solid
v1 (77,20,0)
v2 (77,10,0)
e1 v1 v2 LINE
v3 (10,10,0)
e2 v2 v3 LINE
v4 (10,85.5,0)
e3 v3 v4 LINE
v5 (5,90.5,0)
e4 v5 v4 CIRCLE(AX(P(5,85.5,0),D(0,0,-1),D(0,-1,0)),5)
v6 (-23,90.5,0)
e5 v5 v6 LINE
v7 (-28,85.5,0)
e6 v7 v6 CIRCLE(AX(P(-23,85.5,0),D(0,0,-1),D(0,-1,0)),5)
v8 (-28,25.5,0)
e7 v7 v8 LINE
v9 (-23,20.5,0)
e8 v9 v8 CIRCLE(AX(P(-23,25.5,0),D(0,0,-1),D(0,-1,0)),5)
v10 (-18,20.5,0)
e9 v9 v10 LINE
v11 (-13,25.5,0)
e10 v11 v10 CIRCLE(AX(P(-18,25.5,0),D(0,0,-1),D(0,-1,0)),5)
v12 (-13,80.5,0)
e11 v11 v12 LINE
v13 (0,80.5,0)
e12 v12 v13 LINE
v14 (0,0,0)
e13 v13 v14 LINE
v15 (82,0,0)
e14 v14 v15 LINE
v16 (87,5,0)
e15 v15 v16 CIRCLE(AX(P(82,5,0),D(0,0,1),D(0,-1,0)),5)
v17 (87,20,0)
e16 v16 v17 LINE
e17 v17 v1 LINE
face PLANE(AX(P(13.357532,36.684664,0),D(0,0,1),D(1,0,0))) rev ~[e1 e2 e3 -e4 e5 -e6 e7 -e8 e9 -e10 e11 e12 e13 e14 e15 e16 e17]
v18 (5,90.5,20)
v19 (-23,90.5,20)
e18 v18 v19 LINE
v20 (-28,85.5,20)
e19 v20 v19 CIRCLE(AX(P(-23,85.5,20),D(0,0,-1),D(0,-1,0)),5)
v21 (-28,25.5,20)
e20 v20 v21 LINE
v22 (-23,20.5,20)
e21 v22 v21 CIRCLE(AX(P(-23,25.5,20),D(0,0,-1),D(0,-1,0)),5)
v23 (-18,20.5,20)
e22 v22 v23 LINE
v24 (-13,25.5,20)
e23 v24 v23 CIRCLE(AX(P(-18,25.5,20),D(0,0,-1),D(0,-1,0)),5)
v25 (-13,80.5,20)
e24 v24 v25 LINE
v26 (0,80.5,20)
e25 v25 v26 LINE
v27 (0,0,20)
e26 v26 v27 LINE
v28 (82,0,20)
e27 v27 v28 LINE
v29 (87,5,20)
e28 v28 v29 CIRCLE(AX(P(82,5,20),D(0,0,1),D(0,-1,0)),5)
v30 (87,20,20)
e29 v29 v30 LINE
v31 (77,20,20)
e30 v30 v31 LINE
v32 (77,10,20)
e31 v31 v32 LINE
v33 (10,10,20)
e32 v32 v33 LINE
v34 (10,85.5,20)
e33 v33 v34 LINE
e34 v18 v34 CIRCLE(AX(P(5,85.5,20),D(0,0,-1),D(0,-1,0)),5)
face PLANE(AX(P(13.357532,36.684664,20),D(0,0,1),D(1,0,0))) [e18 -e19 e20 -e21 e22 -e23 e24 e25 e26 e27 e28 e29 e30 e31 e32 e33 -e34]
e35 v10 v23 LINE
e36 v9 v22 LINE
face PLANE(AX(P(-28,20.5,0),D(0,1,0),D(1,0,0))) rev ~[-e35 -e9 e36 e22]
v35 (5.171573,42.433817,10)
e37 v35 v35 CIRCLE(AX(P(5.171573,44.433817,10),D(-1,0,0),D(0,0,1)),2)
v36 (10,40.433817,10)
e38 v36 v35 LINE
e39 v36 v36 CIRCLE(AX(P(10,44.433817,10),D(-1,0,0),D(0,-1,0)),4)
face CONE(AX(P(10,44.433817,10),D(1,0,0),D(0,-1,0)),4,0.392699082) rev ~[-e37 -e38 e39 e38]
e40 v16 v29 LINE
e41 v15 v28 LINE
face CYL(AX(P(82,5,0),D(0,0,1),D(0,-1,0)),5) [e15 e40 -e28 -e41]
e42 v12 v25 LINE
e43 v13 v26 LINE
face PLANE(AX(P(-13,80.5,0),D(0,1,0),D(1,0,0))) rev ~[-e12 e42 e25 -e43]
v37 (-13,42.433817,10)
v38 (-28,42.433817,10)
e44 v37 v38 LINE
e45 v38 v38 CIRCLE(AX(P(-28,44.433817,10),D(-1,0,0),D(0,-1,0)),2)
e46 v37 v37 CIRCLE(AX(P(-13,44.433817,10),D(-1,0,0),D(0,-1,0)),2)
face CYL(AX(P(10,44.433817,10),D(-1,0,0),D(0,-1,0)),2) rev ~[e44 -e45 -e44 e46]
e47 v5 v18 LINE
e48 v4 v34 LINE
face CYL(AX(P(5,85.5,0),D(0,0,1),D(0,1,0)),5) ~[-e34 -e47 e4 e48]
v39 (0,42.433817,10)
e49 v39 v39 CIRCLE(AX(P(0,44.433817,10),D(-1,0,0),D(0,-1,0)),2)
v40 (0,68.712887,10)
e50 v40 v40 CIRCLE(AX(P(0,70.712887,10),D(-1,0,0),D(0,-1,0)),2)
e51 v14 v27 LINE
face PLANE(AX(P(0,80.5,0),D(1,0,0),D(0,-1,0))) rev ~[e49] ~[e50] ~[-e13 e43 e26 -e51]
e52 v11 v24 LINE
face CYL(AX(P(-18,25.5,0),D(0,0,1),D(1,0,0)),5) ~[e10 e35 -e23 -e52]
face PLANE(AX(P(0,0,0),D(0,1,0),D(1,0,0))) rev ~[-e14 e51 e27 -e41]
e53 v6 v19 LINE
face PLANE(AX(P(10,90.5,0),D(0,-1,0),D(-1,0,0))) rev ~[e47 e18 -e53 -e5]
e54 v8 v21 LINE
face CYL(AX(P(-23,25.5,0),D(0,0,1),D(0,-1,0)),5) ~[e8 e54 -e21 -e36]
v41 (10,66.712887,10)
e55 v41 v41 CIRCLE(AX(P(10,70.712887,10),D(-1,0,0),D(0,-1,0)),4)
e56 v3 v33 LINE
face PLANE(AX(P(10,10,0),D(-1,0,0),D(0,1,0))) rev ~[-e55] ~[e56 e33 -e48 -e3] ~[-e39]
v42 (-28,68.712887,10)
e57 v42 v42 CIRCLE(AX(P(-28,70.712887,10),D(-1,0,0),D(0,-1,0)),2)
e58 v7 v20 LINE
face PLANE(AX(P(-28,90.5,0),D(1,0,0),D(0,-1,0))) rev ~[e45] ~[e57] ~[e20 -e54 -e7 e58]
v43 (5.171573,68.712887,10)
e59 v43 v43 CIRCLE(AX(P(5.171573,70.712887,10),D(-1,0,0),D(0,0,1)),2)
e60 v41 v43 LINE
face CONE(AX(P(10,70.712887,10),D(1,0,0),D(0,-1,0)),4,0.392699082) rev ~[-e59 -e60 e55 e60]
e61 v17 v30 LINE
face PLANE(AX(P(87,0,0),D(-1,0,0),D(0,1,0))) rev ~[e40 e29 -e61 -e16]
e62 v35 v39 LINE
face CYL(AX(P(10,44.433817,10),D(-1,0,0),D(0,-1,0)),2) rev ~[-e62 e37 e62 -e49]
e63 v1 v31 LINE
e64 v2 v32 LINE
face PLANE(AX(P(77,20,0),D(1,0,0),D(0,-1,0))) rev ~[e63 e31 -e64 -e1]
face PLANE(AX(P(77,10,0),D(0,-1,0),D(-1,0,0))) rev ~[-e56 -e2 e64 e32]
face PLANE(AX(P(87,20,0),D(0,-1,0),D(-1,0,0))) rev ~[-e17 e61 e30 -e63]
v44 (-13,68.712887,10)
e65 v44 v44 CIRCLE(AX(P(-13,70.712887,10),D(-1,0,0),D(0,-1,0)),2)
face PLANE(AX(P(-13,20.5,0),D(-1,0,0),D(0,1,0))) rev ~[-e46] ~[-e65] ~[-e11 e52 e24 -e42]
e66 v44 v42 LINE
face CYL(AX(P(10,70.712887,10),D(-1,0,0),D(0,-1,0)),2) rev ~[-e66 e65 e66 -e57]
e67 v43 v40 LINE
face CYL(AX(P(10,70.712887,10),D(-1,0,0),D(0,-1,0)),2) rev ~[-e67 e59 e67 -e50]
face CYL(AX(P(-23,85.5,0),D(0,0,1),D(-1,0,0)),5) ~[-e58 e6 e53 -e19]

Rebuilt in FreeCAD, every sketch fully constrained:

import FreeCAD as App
import Part
import Sketcher
from FreeCAD import Vector


def edges_at(feature, points):
    """Names of the edges that pass closest to the given points."""
    edges = feature.Shape.Edges
    near = lambda p: min(range(len(edges)), key=lambda i: edges[i].distToShape(Part.Vertex(*p))[0])
    return sorted({f"Edge{near(p) + 1}" for p in points})

doc = App.newDocument("Part")
body = doc.addObject("PartDesign::Body", "Body")

sketch1 = doc.addObject("Sketcher::SketchObject", "Sketch")
body.addObject(sketch1)
sketch1.AttachmentSupport = (doc.XY_Plane, [""])
sketch1.MapMode = "FlatFace"
sketch1.addGeometry(Part.LineSegment(Vector(0, 80, 0), Vector(0, 0, 0)), False)
sketch1.addGeometry(Part.LineSegment(Vector(0, 0, 0), Vector(87, 0, 0)), False)
sketch1.addGeometry(Part.LineSegment(Vector(87, 0, 0), Vector(87, 20, 0)), False)
sketch1.addGeometry(Part.LineSegment(Vector(87, 20, 0), Vector(77, 20, 0)), False)
sketch1.addGeometry(Part.LineSegment(Vector(77, 20, 0), Vector(77, 10, 0)), False)
sketch1.addGeometry(Part.LineSegment(Vector(77, 10, 0), Vector(10, 10, 0)), False)
sketch1.addGeometry(Part.LineSegment(Vector(10, 10, 0), Vector(10, 90, 0)), False)
sketch1.addGeometry(Part.LineSegment(Vector(10, 90, 0), Vector(-28, 90, 0)), False)
sketch1.addGeometry(Part.LineSegment(Vector(-28, 90, 0), Vector(-28, 20, 0)), False)
sketch1.addGeometry(Part.LineSegment(Vector(-28, 20, 0), Vector(-13, 20, 0)), False)
sketch1.addGeometry(Part.LineSegment(Vector(-13, 20, 0), Vector(-13, 80, 0)), False)
sketch1.addGeometry(Part.LineSegment(Vector(-13, 80, 0), Vector(0, 80, 0)), False)
sketch1.addConstraint(Sketcher.Constraint("Coincident", 0, 2, 1, 1))
sketch1.addConstraint(Sketcher.Constraint("Coincident", 1, 2, 2, 1))
sketch1.addConstraint(Sketcher.Constraint("Coincident", 2, 2, 3, 1))
sketch1.addConstraint(Sketcher.Constraint("Coincident", 3, 2, 4, 1))
sketch1.addConstraint(Sketcher.Constraint("Coincident", 4, 2, 5, 1))
sketch1.addConstraint(Sketcher.Constraint("Coincident", 5, 2, 6, 1))
sketch1.addConstraint(Sketcher.Constraint("Coincident", 6, 2, 7, 1))
sketch1.addConstraint(Sketcher.Constraint("Coincident", 7, 2, 8, 1))
sketch1.addConstraint(Sketcher.Constraint("Coincident", 8, 2, 9, 1))
sketch1.addConstraint(Sketcher.Constraint("Coincident", 9, 2, 10, 1))
sketch1.addConstraint(Sketcher.Constraint("Coincident", 10, 2, 11, 1))
sketch1.addConstraint(Sketcher.Constraint("Coincident", 11, 2, 0, 1))
sketch1.addConstraint(Sketcher.Constraint("Vertical", 0))
sketch1.addConstraint(Sketcher.Constraint("Horizontal", 1))
sketch1.addConstraint(Sketcher.Constraint("Vertical", 2))
sketch1.addConstraint(Sketcher.Constraint("Horizontal", 3))
sketch1.addConstraint(Sketcher.Constraint("Vertical", 4))
sketch1.addConstraint(Sketcher.Constraint("Horizontal", 5))
sketch1.addConstraint(Sketcher.Constraint("Vertical", 6))
sketch1.addConstraint(Sketcher.Constraint("Horizontal", 7))
sketch1.addConstraint(Sketcher.Constraint("Vertical", 8))
sketch1.addConstraint(Sketcher.Constraint("Horizontal", 9))
sketch1.addConstraint(Sketcher.Constraint("Vertical", 10))
sketch1.addConstraint(Sketcher.Constraint("Horizontal", 11))
sketch1.addConstraint(Sketcher.Constraint("Coincident", 0, 2, -1, 1))
sketch1.addConstraint(Sketcher.Constraint("Equal", 3, 4))
sketch1.addConstraint(Sketcher.Constraint("Equal", 0, 6))
sketch1.addConstraint(Sketcher.Constraint("DistanceX", 1, 1, 1, 2, 87.0))
sketch1.addConstraint(Sketcher.Constraint("DistanceX", 3, 2, 3, 1, 10.0))
sketch1.addConstraint(Sketcher.Constraint("DistanceX", 5, 2, 5, 1, 67.0))
sketch1.addConstraint(Sketcher.Constraint("DistanceX", 7, 2, 7, 1, 38.0))
sketch1.addConstraint(Sketcher.Constraint("DistanceX", 9, 1, 9, 2, 15.0))
sketch1.addConstraint(Sketcher.Constraint("DistanceY", 2, 1, 2, 2, 20.0))
sketch1.addConstraint(Sketcher.Constraint("DistanceY", 8, 2, 8, 1, 70.0))
sketch1.addConstraint(Sketcher.Constraint("DistanceY", 0, 2, 0, 1, 80.5))
pad1 = doc.addObject("PartDesign::Pad", "Pad")
body.addObject(pad1)
pad1.Profile = sketch1
pad1.Length = 20
doc.recompute()

fillet = doc.addObject("PartDesign::Fillet", "Fillet")
body.addObject(fillet)
fillet.Base = (pad1, edges_at(pad1, [(87, 0, 10)]))
fillet.Radius = 5
doc.recompute()

fillet2 = doc.addObject("PartDesign::Fillet", "Fillet001")
body.addObject(fillet2)
fillet2.Base = (fillet, edges_at(fillet, [(-13, 20.5, 10), (-28, 20.5, 10)]))
fillet2.Radius = 5
doc.recompute()

fillet3 = doc.addObject("PartDesign::Fillet", "Fillet002")
body.addObject(fillet3)
fillet3.Base = (fillet2, edges_at(fillet2, [(-28, 90.5, 10), (10, 90.5, 10)]))
fillet3.Radius = 5

sketch2 = doc.addObject("Sketcher::SketchObject", "Sketch001")
body.addObject(sketch2)
sketch2.AttachmentSupport = (doc.YZ_Plane, [""])
sketch2.MapMode = "FlatFace"
sketch2.AttachmentOffset = App.Placement(Vector(0, 0, 10), App.Rotation())
sketch2.addGeometry(Part.Circle(Vector(70.7, 10, 0), Vector(0, 0, 1), 2), False)
sketch2.addGeometry(Part.Circle(Vector(44.4, 10, 0), Vector(0, 0, 1), 2), False)
sketch2.addConstraint(Sketcher.Constraint("Equal", 0, 1))
sketch2.addConstraint(Sketcher.Constraint("Horizontal", 0, 3, 1, 3))
sketch2.addConstraint(Sketcher.Constraint("Diameter", 0, 4.0))
sketch2.addConstraint(Sketcher.Constraint("DistanceY", -1, 1, 0, 3, 10.0))
sketch2.addConstraint(Sketcher.Constraint("DistanceX", 1, 3, 0, 3, 26.27907))
sketch2.addConstraint(Sketcher.Constraint("DistanceX", -1, 1, 0, 3, 70.712887))
doc.recompute()
hole = doc.addObject("PartDesign::Hole", "Hole")
body.addObject(hole)
hole.Profile = sketch2
hole.ThreadType = "None"
hole.Diameter = 4
hole.DepthType = "ThroughAll"
hole.HoleCutType = "Countersink"
hole.HoleCutDiameter = 8
hole.HoleCutCountersinkAngle = 45

doc.recompute()
